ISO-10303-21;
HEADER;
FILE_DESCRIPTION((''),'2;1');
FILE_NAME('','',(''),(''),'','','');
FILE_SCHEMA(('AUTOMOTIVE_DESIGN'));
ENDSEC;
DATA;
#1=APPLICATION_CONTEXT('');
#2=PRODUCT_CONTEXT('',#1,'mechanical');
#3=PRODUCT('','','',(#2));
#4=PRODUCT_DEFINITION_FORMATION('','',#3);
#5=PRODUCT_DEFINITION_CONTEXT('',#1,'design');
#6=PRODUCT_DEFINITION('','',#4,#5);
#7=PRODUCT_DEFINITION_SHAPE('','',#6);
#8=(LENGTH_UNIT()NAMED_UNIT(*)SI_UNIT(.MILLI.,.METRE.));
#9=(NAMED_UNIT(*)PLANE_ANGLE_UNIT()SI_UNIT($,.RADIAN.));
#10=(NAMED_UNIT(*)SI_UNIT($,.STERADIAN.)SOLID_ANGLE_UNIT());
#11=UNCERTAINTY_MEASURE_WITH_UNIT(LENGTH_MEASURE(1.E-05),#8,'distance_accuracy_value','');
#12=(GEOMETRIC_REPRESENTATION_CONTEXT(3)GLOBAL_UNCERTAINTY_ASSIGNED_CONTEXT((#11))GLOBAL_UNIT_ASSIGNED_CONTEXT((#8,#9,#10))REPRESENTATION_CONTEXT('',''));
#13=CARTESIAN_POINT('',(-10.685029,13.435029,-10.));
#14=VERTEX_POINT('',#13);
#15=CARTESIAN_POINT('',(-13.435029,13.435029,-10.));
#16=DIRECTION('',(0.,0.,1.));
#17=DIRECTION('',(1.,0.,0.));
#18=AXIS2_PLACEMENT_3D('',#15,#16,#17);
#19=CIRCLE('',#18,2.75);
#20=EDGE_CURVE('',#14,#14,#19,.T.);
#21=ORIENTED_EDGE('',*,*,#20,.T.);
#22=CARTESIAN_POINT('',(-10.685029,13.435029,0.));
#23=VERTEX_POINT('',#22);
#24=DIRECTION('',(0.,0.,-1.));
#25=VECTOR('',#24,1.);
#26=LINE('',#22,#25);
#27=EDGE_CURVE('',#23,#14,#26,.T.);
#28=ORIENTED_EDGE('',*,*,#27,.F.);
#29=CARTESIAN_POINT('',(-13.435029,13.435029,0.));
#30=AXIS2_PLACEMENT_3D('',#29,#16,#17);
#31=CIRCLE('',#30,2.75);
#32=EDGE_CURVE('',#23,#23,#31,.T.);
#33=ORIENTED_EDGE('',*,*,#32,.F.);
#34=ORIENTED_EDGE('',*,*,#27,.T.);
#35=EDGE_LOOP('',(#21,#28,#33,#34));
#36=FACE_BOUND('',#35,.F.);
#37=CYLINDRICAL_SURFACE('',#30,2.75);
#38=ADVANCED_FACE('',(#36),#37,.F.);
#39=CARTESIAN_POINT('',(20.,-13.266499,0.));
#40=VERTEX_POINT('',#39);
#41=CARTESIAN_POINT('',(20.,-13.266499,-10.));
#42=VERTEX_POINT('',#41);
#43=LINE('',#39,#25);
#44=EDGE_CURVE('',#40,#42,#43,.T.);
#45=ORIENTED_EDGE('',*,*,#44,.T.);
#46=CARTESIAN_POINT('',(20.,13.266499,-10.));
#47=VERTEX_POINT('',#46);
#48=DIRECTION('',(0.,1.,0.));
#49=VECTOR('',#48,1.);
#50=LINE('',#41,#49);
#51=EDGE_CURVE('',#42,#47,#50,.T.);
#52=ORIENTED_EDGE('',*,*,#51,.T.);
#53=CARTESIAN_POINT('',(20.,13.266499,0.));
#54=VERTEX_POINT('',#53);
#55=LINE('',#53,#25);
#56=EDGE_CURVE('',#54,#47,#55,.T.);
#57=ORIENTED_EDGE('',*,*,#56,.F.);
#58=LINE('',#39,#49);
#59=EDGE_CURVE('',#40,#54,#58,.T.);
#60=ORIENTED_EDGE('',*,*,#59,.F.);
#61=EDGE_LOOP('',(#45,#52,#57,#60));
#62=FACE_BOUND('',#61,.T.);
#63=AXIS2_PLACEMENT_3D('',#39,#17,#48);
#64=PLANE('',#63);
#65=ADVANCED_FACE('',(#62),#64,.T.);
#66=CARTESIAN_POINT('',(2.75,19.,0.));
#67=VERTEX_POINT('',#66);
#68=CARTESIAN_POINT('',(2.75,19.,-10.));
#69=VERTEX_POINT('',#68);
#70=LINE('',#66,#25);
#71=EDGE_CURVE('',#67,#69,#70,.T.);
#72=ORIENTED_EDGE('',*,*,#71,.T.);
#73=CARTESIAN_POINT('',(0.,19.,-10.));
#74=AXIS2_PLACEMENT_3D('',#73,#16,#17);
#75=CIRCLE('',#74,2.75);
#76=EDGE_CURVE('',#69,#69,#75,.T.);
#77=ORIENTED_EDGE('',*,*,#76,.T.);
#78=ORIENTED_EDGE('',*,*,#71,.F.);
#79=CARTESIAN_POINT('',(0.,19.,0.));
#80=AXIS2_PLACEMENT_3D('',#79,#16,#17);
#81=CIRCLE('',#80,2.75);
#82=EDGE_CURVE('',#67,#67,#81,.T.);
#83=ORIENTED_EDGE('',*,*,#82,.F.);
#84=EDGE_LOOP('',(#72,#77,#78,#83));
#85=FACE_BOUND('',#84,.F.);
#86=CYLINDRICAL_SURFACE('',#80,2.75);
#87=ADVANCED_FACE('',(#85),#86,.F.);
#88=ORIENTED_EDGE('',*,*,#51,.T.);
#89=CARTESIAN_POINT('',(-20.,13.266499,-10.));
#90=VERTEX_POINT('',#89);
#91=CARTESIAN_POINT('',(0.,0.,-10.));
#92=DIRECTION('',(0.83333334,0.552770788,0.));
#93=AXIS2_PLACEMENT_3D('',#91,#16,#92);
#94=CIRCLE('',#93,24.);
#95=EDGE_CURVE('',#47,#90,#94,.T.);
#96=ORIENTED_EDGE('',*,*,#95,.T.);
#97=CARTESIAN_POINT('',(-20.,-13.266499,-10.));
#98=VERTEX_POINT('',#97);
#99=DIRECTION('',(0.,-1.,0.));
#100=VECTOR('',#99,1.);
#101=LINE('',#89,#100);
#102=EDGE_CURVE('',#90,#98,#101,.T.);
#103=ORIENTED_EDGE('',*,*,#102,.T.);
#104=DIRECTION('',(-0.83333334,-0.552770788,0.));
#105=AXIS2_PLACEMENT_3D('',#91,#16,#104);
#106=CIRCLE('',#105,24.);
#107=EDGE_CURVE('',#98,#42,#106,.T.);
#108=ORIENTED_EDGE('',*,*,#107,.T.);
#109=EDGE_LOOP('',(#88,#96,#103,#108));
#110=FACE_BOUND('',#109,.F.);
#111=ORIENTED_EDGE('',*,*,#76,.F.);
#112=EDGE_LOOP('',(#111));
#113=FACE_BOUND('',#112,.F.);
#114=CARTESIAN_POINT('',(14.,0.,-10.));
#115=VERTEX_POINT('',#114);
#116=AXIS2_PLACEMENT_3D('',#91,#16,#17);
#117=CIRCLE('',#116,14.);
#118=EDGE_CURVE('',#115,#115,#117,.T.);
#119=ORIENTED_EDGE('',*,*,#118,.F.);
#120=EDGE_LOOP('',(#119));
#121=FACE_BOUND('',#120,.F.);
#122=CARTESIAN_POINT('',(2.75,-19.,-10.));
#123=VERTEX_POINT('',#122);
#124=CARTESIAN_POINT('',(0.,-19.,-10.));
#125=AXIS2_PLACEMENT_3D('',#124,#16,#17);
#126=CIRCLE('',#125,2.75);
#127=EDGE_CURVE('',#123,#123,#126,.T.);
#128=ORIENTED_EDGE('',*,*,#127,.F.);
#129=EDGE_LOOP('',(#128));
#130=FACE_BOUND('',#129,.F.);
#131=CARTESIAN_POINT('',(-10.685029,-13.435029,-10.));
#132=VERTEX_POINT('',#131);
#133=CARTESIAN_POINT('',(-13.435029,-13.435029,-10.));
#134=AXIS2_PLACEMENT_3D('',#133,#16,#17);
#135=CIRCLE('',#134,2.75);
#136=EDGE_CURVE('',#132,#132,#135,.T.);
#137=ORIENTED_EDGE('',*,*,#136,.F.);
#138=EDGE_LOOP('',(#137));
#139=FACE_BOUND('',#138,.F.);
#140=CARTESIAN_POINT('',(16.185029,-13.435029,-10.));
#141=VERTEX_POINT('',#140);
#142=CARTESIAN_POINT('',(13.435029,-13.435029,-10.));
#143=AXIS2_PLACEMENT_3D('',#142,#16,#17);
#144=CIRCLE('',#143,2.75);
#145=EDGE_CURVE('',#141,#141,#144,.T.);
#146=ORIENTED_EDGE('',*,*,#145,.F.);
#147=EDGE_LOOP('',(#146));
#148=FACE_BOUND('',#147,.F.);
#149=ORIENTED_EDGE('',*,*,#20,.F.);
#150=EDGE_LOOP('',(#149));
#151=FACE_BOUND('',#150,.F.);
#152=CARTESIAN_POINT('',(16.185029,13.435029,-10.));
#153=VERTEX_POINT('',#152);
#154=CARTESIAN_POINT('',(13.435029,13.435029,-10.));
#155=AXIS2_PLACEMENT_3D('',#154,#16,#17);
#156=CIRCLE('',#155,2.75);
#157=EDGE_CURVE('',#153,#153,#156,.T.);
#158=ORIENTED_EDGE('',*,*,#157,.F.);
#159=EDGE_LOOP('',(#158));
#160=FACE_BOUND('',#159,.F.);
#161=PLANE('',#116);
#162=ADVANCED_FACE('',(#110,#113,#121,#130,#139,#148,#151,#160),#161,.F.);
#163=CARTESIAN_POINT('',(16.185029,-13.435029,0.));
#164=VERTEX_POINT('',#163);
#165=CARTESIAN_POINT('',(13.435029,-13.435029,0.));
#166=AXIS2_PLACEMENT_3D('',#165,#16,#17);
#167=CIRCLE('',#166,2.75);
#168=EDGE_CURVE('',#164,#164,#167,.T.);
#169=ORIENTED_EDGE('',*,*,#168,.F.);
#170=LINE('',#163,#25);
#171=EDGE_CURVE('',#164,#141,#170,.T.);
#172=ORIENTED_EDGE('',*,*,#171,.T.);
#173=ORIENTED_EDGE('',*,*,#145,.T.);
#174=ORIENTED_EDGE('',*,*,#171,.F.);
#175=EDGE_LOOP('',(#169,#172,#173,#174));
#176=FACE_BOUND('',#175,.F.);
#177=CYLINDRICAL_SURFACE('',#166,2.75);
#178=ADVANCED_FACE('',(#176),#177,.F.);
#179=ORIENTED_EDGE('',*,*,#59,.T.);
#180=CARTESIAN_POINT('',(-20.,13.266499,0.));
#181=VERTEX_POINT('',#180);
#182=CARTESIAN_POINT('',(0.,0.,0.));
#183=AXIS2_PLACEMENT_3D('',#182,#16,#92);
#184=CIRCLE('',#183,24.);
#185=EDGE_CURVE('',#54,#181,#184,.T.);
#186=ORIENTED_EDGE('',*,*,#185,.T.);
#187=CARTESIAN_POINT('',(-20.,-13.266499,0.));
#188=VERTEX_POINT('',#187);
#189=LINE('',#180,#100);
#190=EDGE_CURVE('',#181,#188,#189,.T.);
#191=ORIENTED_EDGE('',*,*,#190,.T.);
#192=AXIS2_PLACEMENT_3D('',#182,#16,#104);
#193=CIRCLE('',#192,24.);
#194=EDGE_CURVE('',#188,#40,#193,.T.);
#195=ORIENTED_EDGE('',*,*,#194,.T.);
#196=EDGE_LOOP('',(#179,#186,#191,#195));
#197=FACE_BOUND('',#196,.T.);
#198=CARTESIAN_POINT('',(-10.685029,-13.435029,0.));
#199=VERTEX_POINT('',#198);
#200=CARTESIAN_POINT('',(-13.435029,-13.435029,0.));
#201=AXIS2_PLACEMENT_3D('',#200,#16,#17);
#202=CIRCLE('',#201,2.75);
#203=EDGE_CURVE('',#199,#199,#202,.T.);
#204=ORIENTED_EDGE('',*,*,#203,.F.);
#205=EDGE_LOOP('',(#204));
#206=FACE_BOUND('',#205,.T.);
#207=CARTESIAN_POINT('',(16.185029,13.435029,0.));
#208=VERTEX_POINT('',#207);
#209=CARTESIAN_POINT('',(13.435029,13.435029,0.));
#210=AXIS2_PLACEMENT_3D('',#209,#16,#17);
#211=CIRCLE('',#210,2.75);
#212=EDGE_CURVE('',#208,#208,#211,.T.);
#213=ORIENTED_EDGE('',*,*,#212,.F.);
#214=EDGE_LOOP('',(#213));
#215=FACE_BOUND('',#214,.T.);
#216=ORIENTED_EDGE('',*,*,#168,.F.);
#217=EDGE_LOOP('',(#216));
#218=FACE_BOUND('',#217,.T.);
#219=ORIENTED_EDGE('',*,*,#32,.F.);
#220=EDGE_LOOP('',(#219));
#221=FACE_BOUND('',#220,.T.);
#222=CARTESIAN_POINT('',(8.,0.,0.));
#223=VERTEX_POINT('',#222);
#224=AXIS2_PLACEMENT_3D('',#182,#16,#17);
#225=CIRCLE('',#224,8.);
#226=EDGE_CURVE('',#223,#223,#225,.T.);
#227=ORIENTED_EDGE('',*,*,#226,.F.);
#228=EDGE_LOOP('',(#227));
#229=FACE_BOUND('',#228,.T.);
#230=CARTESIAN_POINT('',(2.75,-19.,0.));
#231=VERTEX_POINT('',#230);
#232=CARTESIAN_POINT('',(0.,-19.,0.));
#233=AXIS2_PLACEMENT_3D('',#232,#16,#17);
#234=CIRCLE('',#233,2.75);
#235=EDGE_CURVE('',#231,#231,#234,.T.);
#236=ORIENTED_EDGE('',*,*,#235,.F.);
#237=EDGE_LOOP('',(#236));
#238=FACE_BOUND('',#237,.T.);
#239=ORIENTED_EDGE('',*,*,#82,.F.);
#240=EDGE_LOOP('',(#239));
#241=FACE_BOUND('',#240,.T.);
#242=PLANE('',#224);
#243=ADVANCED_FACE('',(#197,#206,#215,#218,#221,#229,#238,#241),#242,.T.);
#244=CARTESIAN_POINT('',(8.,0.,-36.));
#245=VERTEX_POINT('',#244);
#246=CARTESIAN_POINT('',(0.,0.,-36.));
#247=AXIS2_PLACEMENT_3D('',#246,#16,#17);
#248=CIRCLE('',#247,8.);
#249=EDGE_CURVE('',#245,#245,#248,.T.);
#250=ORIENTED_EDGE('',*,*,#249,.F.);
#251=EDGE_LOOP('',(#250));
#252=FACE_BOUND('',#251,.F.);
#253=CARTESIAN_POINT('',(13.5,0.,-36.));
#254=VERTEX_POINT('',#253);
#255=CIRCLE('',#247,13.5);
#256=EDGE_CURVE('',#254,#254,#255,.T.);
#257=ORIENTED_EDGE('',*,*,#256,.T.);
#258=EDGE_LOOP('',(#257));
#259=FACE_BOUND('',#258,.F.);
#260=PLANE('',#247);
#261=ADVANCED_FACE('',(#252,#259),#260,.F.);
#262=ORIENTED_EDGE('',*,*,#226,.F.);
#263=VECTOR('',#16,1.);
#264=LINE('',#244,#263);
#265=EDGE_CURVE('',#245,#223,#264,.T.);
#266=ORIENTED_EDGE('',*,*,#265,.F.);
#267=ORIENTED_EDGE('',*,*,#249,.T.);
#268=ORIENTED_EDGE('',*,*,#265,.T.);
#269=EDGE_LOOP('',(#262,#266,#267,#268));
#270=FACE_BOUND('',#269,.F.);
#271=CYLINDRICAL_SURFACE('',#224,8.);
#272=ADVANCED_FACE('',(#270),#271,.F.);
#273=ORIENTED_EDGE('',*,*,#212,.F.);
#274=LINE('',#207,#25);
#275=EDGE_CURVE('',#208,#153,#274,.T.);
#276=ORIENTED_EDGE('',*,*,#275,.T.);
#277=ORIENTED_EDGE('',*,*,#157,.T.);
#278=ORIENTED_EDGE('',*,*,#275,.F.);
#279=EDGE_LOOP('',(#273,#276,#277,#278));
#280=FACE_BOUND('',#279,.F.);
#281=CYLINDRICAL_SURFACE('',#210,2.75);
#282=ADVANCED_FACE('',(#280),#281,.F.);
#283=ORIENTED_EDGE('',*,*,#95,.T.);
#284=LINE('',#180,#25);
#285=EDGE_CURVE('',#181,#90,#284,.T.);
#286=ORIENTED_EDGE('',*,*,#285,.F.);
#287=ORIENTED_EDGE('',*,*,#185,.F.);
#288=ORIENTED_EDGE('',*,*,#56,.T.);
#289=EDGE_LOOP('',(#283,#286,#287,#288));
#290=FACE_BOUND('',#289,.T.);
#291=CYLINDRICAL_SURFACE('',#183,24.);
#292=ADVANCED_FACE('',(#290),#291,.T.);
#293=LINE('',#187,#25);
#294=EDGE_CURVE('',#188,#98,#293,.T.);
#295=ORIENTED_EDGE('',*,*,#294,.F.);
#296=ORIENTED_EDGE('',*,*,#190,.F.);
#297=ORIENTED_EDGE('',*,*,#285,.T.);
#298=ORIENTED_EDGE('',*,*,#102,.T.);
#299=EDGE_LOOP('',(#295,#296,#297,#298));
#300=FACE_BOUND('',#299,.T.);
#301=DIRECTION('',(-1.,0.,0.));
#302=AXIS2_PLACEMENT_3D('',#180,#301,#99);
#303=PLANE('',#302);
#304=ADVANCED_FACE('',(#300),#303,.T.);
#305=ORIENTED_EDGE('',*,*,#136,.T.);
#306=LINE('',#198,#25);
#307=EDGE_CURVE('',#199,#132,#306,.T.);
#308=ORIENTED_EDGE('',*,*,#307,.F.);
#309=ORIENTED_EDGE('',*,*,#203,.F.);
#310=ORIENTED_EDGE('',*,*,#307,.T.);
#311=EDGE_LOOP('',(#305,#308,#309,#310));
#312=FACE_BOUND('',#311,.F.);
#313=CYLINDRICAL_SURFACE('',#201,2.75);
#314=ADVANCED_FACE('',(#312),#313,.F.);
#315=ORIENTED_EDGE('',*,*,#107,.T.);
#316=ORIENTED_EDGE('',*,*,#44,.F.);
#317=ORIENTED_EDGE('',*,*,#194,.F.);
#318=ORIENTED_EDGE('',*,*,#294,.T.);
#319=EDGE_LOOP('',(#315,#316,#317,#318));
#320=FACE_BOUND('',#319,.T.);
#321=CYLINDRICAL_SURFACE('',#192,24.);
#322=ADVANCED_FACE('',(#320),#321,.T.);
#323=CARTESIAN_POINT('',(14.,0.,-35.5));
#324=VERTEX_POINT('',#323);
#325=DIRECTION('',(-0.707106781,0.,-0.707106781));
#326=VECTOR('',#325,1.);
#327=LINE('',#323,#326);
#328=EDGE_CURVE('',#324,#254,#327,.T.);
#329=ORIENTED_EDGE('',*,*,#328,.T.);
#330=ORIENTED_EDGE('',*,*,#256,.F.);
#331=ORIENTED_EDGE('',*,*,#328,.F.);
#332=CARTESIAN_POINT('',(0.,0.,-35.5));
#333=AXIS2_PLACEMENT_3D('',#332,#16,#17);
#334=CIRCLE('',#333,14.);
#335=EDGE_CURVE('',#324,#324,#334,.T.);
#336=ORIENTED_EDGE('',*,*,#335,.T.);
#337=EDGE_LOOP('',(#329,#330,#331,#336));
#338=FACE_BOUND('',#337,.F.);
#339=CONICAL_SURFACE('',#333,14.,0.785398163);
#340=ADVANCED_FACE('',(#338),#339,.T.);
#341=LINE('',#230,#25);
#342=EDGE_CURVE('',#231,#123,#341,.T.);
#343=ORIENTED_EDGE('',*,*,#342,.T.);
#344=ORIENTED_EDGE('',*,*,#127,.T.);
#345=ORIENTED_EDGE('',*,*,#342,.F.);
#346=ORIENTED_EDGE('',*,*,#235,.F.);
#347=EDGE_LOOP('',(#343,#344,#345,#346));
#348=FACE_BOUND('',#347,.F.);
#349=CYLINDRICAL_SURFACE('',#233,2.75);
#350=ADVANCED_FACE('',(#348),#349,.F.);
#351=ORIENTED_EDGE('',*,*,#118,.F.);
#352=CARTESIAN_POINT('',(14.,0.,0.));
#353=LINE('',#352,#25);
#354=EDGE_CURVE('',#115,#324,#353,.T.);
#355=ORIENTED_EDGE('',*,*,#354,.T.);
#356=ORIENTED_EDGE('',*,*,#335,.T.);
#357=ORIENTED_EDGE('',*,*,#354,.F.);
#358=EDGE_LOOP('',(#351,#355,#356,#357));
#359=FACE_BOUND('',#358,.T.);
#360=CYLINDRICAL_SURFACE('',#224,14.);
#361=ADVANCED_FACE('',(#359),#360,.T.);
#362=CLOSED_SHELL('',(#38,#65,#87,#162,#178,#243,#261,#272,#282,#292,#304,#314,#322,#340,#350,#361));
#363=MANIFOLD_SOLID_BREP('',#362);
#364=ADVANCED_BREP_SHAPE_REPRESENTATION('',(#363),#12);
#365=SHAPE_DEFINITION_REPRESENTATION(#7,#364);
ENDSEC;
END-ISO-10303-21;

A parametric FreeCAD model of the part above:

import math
import FreeCAD as App
import Part
import Sketcher

V = App.Vector


def edges_at(feature, points):
    """Names of the edges that pass closest to the given points."""
    edges = feature.Shape.Edges
    near = lambda p: min(range(len(edges)), key=lambda i: edges[i].distToShape(Part.Vertex(*p))[0])
    return sorted({f"Edge{near(p) + 1}" for p in points})

doc = App.newDocument("Part")
body = doc.addObject("PartDesign::Body", "Body")

sketch1 = doc.addObject("Sketcher::SketchObject", "Sketch")
body.addObject(sketch1)
sketch1.AttachmentSupport = (doc.XY_Plane, [""])
sketch1.MapMode = "FlatFace"
sketch1.addGeometry([
    Part.LineSegment(V(20, -13.3, 0), V(20, 13.3, 0)),
    Part.ArcOfCircle(Part.Circle(V(0, 0, 0), V(0, 0, 1), 24), math.radians(34), math.radians(146)),
    Part.LineSegment(V(-20, 13.3, 0), V(-20, -13.3, 0)),
    Part.ArcOfCircle(Part.Circle(V(0, 0, 0), V(0, 0, 1), 24), math.radians(-146), math.radians(-34)),
    Part.Circle(V(-13.4, -13.4, 0), V(0, 0, 1), 2.8),
    Part.Circle(V(0, -19, 0), V(0, 0, 1), 2.8),
    Part.Circle(V(13.4, -13.4, 0), V(0, 0, 1), 2.8),
    Part.Circle(V(-13.4, 13.4, 0), V(0, 0, 1), 2.8),
    Part.Circle(V(0, 0, 0), V(0, 0, 1), 8),
    Part.Circle(V(0, 19, 0), V(0, 0, 1), 2.8),
    Part.Circle(V(13.4, 13.4, 0), V(0, 0, 1), 2.8),
], False)
sketch1.addConstraint([
    Sketcher.Constraint("Coincident", 0, 2, 1, 1),
    Sketcher.Constraint("Coincident", 1, 2, 2, 1),
    Sketcher.Constraint("Coincident", 2, 2, 3, 1),
    Sketcher.Constraint("Coincident", 3, 2, 0, 1),
    Sketcher.Constraint("Vertical", 0),
    Sketcher.Constraint("Vertical", 2),
    Sketcher.Constraint("Coincident", 1, 3, -1, 1),
    Sketcher.Constraint("Coincident", 3, 3, -1, 1),
    Sketcher.Constraint("Coincident", 8, 3, -1, 1),
    Sketcher.Constraint("Equal", 1, 3),
    Sketcher.Constraint("Equal", 4, 5),
    Sketcher.Constraint("Equal", 5, 6),
    Sketcher.Constraint("Equal", 6, 7),
    Sketcher.Constraint("Equal", 7, 9),
    Sketcher.Constraint("Equal", 9, 10),
    Sketcher.Constraint("Symmetric", 6, 3, 7, 3, -1, 1),
    Sketcher.Constraint("Symmetric", 5, 3, 9, 3, -1, 1),
    Sketcher.Constraint("Symmetric", 4, 3, 10, 3, -1, 1),
    Sketcher.Constraint("Symmetric", 4, 3, 6, 3, -2),
    Sketcher.Constraint("PointOnObject", 5, 3, -2),
    Sketcher.Constraint("Horizontal", 0, 2, 1, 2),
    Sketcher.Constraint("Diameter", 8, 16.0),
    Sketcher.Constraint("Radius", 1, 24.0),
    Sketcher.Constraint("Diameter", 4, 5.5),
    Sketcher.Constraint("DistanceY", 5, 3, -1, 1, 19.0),
    Sketcher.Constraint("DistanceX", -1, 1, 0, 2, 20.0),
    Sketcher.Constraint("DistanceX", 4, 3, -1, 1, 13.435029),
    Sketcher.Constraint("DistanceY", 4, 3, -1, 1, 13.435029),
])
pad1 = doc.addObject("PartDesign::Pad", "Pad")
body.addObject(pad1)
pad1.Profile = sketch1
pad1.Length = 10
pad1.Reversed = True

sketch2 = doc.addObject("Sketcher::SketchObject", "Sketch001")
body.addObject(sketch2)
sketch2.AttachmentSupport = (doc.XY_Plane, [""])
sketch2.MapMode = "FlatFace"
sketch2.addGeometry([
    Part.Circle(V(0, 0, 0), V(0, 0, 1), 14),
    Part.Circle(V(0, 0, 0), V(0, 0, 1), 8),
], False)
sketch2.addConstraint([
    Sketcher.Constraint("Coincident", 0, 3, -1, 1),
    Sketcher.Constraint("Coincident", 1, 3, -1, 1),
    Sketcher.Constraint("Diameter", 0, 28.0),
    Sketcher.Constraint("Diameter", 1, 16.0),
])
pad2 = doc.addObject("PartDesign::Pad", "Pad001")
body.addObject(pad2)
pad2.Profile = sketch2
pad2.Length = 36
pad2.Reversed = True
doc.recompute()

chamfer = doc.addObject("PartDesign::Chamfer", "Chamfer")
body.addObject(chamfer)
chamfer.Base = (pad2, edges_at(pad2, [(-14, 0, -36)]))
chamfer.Size = 0.5

doc.recompute()
